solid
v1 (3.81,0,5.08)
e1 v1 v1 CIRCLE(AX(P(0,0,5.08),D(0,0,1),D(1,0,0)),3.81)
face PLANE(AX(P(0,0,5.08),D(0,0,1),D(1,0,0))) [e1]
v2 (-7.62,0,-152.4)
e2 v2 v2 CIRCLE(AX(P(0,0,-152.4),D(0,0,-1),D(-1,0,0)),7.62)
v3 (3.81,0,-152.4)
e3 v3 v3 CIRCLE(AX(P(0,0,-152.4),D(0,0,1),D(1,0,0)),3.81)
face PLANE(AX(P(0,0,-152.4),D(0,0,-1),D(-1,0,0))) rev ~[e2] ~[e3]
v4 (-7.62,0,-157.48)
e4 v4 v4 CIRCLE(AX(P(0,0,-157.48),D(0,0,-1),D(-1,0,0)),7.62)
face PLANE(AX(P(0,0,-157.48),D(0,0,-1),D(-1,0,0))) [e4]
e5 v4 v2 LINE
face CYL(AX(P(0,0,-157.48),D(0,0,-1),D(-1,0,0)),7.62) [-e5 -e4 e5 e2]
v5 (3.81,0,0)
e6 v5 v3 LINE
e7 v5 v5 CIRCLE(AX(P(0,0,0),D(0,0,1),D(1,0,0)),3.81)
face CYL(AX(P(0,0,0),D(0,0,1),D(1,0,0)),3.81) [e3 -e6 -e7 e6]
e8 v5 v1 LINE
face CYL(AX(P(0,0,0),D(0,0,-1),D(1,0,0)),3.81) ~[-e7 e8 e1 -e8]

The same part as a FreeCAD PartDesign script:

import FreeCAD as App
import Part
import Sketcher
Q = App.Units.Quantity

doc = App.newDocument("Part")
params = doc.addObject("Spreadsheet::Sheet", "Params")
for row, (alias, value) in enumerate([
    ("sketch1_diameter", "0.3 in"),
    ("pad1_length", "6.2 in"),
    ("sketch2_diameter", "0.6 in"),
    ("sketch2_diameter2", "0.3 in"),
    ("pad2_length", "0.2 in"),
    ("sketch3_diameter", "0.3 in"),
    ("pad3_length", "0.2 in"),
], start=1):
    params.set(f"A{row}", alias)
    params.set(f"B{row}", "=" + value)
    params.setAlias(f"B{row}", alias)

body = doc.addObject("PartDesign::Body", "Body")

sketch1 = doc.addObject("Sketcher::SketchObject", "Sketch")
body.addObject(sketch1)
sketch1.AttachmentSupport = (doc.XY_Plane, [""])
sketch1.MapMode = "FlatFace"
sketch1.addGeometry(Part.Circle(App.Vector(0, 0, 0), App.Vector(0, 0, 1), 3.81), False)
sketch1.addConstraint(Sketcher.Constraint("Coincident", 0, 3, -1, 1))
sketch1.addConstraint(Sketcher.Constraint("Diameter", 0, Q("0.3 in")))
sketch1.setExpression("Constraints[1]", "Params.sketch1_diameter")
pad1 = doc.addObject("PartDesign::Pad", "Pad")
body.addObject(pad1)
pad1.Profile = sketch1
pad1.setExpression("Length", "Params.pad1_length")
pad1.Reversed = True

sketch2 = doc.addObject("Sketcher::SketchObject", "Sketch001")
body.addObject(sketch2)
sketch2.AttachmentSupport = (doc.XY_Plane, [""])
sketch2.MapMode = "FlatFace"
sketch2.AttachmentOffset = App.Placement(App.Vector(0, 0, -6.2 * 25.4), App.Rotation())
sketch2.addGeometry(Part.Circle(App.Vector(0, 0, 0), App.Vector(0, 0, 1), 7.62), False)
sketch2.addGeometry(Part.Circle(App.Vector(0, 0, 0), App.Vector(0, 0, 1), 3.81), False)
sketch2.addConstraint(Sketcher.Constraint("Coincident", 0, 3, -1, 1))
sketch2.addConstraint(Sketcher.Constraint("Coincident", 1, 3, -1, 1))
sketch2.addConstraint(Sketcher.Constraint("Diameter", 0, Q("0.6 in")))
sketch2.addConstraint(Sketcher.Constraint("Diameter", 1, Q("0.3 in")))
sketch2.setExpression("Constraints[2]", "Params.sketch2_diameter")
sketch2.setExpression("Constraints[3]", "Params.sketch2_diameter2")
pad2 = doc.addObject("PartDesign::Pad", "Pad001")
body.addObject(pad2)
pad2.Profile = sketch2
pad2.setExpression("Length", "Params.pad2_length")

sketch3 = doc.addObject("Sketcher::SketchObject", "Sketch002")
body.addObject(sketch3)
sketch3.AttachmentSupport = (doc.XY_Plane, [""])
sketch3.MapMode = "FlatFace"
sketch3.addGeometry(Part.Circle(App.Vector(0, 0, 0), App.Vector(0, 0, 1), 3.81), False)
sketch3.addConstraint(Sketcher.Constraint("Coincident", 0, 3, -1, 1))
sketch3.addConstraint(Sketcher.Constraint("Diameter", 0, Q("0.3 in")))
sketch3.setExpression("Constraints[1]", "Params.sketch3_diameter")
pad3 = doc.addObject("PartDesign::Pad", "Pad002")
body.addObject(pad3)
pad3.Profile = sketch3
pad3.setExpression("Length", "Params.pad3_length")

doc.recompute()
